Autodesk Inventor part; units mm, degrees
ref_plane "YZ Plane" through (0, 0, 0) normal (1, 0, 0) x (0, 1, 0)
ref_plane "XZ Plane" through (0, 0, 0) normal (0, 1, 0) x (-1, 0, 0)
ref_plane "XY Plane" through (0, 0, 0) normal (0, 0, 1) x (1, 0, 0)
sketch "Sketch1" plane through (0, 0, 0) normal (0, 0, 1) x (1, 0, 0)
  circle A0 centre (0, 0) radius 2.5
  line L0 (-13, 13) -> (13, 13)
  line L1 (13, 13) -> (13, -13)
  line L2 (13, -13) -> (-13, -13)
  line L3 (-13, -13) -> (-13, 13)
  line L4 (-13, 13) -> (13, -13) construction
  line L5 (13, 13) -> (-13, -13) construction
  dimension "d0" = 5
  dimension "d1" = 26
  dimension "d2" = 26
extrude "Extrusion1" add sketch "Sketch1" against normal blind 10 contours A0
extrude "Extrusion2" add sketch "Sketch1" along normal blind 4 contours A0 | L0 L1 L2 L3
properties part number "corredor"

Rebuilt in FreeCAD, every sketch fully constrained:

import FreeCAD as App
import Part
import Sketcher

V = App.Vector


def add_polygon(sketch, points):
    """Adds a closed chain of lines whose ends are joined by coincident constraints."""
    first, n = sketch.GeometryCount, len(points)
    for a, b in zip(points, points[1:] + points[:1]):
        sketch.addGeometry(Part.LineSegment(App.Vector(*a, 0), App.Vector(*b, 0)), False)
    for i in range(n):
        sketch.addConstraint(Sketcher.Constraint("Coincident", first + i, 2, first + (i + 1) % n, 1))

doc = App.newDocument("Part")
body = doc.addObject("PartDesign::Body", "Body")

# Sketch on XY plane
sketch1 = body.newObject("Sketcher::SketchObject", "Sketch")
sketch1.AttachmentSupport = (doc.getObject("XY_Plane"), [""])
sketch1.MapMode = "FlatFace"
sketch1.addGeometry(Part.Circle(V(0, 0, 0), V(0, 0, 1), 2.5), False)
sketch1.addConstraint(Sketcher.Constraint("Coincident", 0, 3, -1, 1))
sketch1.addConstraint(Sketcher.Constraint("Diameter", 0, 5.0))
pad1 = body.newObject("PartDesign::Pad", "Pad")
pad1.Profile = sketch1
pad1.Length = 10
pad1.Reversed = True

# Sketch on XY plane
sketch2 = body.newObject("Sketcher::SketchObject", "Sketch001")
sketch2.AttachmentSupport = (doc.getObject("XY_Plane"), [""])
sketch2.MapMode = "FlatFace"
add_polygon(sketch2, [(13, 13), (-13, 13), (-13, -13), (13, -13)])  # lines 0-3
sketch2.addConstraint(Sketcher.Constraint("Horizontal", 0))
sketch2.addConstraint(Sketcher.Constraint("Vertical", 1))
sketch2.addConstraint(Sketcher.Constraint("Horizontal", 2))
sketch2.addConstraint(Sketcher.Constraint("Vertical", 3))
sketch2.addConstraint(Sketcher.Constraint("Symmetric", 0, 2, 2, 2, -1, 1))
sketch2.addConstraint(Sketcher.Constraint("Equal", 2, 1))
sketch2.addConstraint(Sketcher.Constraint("DistanceX", 0, 2, 0, 1, 26.0))
pad2 = body.newObject("PartDesign::Pad", "Pad001")
pad2.Profile = sketch2
pad2.Length = 4

doc.recompute()
